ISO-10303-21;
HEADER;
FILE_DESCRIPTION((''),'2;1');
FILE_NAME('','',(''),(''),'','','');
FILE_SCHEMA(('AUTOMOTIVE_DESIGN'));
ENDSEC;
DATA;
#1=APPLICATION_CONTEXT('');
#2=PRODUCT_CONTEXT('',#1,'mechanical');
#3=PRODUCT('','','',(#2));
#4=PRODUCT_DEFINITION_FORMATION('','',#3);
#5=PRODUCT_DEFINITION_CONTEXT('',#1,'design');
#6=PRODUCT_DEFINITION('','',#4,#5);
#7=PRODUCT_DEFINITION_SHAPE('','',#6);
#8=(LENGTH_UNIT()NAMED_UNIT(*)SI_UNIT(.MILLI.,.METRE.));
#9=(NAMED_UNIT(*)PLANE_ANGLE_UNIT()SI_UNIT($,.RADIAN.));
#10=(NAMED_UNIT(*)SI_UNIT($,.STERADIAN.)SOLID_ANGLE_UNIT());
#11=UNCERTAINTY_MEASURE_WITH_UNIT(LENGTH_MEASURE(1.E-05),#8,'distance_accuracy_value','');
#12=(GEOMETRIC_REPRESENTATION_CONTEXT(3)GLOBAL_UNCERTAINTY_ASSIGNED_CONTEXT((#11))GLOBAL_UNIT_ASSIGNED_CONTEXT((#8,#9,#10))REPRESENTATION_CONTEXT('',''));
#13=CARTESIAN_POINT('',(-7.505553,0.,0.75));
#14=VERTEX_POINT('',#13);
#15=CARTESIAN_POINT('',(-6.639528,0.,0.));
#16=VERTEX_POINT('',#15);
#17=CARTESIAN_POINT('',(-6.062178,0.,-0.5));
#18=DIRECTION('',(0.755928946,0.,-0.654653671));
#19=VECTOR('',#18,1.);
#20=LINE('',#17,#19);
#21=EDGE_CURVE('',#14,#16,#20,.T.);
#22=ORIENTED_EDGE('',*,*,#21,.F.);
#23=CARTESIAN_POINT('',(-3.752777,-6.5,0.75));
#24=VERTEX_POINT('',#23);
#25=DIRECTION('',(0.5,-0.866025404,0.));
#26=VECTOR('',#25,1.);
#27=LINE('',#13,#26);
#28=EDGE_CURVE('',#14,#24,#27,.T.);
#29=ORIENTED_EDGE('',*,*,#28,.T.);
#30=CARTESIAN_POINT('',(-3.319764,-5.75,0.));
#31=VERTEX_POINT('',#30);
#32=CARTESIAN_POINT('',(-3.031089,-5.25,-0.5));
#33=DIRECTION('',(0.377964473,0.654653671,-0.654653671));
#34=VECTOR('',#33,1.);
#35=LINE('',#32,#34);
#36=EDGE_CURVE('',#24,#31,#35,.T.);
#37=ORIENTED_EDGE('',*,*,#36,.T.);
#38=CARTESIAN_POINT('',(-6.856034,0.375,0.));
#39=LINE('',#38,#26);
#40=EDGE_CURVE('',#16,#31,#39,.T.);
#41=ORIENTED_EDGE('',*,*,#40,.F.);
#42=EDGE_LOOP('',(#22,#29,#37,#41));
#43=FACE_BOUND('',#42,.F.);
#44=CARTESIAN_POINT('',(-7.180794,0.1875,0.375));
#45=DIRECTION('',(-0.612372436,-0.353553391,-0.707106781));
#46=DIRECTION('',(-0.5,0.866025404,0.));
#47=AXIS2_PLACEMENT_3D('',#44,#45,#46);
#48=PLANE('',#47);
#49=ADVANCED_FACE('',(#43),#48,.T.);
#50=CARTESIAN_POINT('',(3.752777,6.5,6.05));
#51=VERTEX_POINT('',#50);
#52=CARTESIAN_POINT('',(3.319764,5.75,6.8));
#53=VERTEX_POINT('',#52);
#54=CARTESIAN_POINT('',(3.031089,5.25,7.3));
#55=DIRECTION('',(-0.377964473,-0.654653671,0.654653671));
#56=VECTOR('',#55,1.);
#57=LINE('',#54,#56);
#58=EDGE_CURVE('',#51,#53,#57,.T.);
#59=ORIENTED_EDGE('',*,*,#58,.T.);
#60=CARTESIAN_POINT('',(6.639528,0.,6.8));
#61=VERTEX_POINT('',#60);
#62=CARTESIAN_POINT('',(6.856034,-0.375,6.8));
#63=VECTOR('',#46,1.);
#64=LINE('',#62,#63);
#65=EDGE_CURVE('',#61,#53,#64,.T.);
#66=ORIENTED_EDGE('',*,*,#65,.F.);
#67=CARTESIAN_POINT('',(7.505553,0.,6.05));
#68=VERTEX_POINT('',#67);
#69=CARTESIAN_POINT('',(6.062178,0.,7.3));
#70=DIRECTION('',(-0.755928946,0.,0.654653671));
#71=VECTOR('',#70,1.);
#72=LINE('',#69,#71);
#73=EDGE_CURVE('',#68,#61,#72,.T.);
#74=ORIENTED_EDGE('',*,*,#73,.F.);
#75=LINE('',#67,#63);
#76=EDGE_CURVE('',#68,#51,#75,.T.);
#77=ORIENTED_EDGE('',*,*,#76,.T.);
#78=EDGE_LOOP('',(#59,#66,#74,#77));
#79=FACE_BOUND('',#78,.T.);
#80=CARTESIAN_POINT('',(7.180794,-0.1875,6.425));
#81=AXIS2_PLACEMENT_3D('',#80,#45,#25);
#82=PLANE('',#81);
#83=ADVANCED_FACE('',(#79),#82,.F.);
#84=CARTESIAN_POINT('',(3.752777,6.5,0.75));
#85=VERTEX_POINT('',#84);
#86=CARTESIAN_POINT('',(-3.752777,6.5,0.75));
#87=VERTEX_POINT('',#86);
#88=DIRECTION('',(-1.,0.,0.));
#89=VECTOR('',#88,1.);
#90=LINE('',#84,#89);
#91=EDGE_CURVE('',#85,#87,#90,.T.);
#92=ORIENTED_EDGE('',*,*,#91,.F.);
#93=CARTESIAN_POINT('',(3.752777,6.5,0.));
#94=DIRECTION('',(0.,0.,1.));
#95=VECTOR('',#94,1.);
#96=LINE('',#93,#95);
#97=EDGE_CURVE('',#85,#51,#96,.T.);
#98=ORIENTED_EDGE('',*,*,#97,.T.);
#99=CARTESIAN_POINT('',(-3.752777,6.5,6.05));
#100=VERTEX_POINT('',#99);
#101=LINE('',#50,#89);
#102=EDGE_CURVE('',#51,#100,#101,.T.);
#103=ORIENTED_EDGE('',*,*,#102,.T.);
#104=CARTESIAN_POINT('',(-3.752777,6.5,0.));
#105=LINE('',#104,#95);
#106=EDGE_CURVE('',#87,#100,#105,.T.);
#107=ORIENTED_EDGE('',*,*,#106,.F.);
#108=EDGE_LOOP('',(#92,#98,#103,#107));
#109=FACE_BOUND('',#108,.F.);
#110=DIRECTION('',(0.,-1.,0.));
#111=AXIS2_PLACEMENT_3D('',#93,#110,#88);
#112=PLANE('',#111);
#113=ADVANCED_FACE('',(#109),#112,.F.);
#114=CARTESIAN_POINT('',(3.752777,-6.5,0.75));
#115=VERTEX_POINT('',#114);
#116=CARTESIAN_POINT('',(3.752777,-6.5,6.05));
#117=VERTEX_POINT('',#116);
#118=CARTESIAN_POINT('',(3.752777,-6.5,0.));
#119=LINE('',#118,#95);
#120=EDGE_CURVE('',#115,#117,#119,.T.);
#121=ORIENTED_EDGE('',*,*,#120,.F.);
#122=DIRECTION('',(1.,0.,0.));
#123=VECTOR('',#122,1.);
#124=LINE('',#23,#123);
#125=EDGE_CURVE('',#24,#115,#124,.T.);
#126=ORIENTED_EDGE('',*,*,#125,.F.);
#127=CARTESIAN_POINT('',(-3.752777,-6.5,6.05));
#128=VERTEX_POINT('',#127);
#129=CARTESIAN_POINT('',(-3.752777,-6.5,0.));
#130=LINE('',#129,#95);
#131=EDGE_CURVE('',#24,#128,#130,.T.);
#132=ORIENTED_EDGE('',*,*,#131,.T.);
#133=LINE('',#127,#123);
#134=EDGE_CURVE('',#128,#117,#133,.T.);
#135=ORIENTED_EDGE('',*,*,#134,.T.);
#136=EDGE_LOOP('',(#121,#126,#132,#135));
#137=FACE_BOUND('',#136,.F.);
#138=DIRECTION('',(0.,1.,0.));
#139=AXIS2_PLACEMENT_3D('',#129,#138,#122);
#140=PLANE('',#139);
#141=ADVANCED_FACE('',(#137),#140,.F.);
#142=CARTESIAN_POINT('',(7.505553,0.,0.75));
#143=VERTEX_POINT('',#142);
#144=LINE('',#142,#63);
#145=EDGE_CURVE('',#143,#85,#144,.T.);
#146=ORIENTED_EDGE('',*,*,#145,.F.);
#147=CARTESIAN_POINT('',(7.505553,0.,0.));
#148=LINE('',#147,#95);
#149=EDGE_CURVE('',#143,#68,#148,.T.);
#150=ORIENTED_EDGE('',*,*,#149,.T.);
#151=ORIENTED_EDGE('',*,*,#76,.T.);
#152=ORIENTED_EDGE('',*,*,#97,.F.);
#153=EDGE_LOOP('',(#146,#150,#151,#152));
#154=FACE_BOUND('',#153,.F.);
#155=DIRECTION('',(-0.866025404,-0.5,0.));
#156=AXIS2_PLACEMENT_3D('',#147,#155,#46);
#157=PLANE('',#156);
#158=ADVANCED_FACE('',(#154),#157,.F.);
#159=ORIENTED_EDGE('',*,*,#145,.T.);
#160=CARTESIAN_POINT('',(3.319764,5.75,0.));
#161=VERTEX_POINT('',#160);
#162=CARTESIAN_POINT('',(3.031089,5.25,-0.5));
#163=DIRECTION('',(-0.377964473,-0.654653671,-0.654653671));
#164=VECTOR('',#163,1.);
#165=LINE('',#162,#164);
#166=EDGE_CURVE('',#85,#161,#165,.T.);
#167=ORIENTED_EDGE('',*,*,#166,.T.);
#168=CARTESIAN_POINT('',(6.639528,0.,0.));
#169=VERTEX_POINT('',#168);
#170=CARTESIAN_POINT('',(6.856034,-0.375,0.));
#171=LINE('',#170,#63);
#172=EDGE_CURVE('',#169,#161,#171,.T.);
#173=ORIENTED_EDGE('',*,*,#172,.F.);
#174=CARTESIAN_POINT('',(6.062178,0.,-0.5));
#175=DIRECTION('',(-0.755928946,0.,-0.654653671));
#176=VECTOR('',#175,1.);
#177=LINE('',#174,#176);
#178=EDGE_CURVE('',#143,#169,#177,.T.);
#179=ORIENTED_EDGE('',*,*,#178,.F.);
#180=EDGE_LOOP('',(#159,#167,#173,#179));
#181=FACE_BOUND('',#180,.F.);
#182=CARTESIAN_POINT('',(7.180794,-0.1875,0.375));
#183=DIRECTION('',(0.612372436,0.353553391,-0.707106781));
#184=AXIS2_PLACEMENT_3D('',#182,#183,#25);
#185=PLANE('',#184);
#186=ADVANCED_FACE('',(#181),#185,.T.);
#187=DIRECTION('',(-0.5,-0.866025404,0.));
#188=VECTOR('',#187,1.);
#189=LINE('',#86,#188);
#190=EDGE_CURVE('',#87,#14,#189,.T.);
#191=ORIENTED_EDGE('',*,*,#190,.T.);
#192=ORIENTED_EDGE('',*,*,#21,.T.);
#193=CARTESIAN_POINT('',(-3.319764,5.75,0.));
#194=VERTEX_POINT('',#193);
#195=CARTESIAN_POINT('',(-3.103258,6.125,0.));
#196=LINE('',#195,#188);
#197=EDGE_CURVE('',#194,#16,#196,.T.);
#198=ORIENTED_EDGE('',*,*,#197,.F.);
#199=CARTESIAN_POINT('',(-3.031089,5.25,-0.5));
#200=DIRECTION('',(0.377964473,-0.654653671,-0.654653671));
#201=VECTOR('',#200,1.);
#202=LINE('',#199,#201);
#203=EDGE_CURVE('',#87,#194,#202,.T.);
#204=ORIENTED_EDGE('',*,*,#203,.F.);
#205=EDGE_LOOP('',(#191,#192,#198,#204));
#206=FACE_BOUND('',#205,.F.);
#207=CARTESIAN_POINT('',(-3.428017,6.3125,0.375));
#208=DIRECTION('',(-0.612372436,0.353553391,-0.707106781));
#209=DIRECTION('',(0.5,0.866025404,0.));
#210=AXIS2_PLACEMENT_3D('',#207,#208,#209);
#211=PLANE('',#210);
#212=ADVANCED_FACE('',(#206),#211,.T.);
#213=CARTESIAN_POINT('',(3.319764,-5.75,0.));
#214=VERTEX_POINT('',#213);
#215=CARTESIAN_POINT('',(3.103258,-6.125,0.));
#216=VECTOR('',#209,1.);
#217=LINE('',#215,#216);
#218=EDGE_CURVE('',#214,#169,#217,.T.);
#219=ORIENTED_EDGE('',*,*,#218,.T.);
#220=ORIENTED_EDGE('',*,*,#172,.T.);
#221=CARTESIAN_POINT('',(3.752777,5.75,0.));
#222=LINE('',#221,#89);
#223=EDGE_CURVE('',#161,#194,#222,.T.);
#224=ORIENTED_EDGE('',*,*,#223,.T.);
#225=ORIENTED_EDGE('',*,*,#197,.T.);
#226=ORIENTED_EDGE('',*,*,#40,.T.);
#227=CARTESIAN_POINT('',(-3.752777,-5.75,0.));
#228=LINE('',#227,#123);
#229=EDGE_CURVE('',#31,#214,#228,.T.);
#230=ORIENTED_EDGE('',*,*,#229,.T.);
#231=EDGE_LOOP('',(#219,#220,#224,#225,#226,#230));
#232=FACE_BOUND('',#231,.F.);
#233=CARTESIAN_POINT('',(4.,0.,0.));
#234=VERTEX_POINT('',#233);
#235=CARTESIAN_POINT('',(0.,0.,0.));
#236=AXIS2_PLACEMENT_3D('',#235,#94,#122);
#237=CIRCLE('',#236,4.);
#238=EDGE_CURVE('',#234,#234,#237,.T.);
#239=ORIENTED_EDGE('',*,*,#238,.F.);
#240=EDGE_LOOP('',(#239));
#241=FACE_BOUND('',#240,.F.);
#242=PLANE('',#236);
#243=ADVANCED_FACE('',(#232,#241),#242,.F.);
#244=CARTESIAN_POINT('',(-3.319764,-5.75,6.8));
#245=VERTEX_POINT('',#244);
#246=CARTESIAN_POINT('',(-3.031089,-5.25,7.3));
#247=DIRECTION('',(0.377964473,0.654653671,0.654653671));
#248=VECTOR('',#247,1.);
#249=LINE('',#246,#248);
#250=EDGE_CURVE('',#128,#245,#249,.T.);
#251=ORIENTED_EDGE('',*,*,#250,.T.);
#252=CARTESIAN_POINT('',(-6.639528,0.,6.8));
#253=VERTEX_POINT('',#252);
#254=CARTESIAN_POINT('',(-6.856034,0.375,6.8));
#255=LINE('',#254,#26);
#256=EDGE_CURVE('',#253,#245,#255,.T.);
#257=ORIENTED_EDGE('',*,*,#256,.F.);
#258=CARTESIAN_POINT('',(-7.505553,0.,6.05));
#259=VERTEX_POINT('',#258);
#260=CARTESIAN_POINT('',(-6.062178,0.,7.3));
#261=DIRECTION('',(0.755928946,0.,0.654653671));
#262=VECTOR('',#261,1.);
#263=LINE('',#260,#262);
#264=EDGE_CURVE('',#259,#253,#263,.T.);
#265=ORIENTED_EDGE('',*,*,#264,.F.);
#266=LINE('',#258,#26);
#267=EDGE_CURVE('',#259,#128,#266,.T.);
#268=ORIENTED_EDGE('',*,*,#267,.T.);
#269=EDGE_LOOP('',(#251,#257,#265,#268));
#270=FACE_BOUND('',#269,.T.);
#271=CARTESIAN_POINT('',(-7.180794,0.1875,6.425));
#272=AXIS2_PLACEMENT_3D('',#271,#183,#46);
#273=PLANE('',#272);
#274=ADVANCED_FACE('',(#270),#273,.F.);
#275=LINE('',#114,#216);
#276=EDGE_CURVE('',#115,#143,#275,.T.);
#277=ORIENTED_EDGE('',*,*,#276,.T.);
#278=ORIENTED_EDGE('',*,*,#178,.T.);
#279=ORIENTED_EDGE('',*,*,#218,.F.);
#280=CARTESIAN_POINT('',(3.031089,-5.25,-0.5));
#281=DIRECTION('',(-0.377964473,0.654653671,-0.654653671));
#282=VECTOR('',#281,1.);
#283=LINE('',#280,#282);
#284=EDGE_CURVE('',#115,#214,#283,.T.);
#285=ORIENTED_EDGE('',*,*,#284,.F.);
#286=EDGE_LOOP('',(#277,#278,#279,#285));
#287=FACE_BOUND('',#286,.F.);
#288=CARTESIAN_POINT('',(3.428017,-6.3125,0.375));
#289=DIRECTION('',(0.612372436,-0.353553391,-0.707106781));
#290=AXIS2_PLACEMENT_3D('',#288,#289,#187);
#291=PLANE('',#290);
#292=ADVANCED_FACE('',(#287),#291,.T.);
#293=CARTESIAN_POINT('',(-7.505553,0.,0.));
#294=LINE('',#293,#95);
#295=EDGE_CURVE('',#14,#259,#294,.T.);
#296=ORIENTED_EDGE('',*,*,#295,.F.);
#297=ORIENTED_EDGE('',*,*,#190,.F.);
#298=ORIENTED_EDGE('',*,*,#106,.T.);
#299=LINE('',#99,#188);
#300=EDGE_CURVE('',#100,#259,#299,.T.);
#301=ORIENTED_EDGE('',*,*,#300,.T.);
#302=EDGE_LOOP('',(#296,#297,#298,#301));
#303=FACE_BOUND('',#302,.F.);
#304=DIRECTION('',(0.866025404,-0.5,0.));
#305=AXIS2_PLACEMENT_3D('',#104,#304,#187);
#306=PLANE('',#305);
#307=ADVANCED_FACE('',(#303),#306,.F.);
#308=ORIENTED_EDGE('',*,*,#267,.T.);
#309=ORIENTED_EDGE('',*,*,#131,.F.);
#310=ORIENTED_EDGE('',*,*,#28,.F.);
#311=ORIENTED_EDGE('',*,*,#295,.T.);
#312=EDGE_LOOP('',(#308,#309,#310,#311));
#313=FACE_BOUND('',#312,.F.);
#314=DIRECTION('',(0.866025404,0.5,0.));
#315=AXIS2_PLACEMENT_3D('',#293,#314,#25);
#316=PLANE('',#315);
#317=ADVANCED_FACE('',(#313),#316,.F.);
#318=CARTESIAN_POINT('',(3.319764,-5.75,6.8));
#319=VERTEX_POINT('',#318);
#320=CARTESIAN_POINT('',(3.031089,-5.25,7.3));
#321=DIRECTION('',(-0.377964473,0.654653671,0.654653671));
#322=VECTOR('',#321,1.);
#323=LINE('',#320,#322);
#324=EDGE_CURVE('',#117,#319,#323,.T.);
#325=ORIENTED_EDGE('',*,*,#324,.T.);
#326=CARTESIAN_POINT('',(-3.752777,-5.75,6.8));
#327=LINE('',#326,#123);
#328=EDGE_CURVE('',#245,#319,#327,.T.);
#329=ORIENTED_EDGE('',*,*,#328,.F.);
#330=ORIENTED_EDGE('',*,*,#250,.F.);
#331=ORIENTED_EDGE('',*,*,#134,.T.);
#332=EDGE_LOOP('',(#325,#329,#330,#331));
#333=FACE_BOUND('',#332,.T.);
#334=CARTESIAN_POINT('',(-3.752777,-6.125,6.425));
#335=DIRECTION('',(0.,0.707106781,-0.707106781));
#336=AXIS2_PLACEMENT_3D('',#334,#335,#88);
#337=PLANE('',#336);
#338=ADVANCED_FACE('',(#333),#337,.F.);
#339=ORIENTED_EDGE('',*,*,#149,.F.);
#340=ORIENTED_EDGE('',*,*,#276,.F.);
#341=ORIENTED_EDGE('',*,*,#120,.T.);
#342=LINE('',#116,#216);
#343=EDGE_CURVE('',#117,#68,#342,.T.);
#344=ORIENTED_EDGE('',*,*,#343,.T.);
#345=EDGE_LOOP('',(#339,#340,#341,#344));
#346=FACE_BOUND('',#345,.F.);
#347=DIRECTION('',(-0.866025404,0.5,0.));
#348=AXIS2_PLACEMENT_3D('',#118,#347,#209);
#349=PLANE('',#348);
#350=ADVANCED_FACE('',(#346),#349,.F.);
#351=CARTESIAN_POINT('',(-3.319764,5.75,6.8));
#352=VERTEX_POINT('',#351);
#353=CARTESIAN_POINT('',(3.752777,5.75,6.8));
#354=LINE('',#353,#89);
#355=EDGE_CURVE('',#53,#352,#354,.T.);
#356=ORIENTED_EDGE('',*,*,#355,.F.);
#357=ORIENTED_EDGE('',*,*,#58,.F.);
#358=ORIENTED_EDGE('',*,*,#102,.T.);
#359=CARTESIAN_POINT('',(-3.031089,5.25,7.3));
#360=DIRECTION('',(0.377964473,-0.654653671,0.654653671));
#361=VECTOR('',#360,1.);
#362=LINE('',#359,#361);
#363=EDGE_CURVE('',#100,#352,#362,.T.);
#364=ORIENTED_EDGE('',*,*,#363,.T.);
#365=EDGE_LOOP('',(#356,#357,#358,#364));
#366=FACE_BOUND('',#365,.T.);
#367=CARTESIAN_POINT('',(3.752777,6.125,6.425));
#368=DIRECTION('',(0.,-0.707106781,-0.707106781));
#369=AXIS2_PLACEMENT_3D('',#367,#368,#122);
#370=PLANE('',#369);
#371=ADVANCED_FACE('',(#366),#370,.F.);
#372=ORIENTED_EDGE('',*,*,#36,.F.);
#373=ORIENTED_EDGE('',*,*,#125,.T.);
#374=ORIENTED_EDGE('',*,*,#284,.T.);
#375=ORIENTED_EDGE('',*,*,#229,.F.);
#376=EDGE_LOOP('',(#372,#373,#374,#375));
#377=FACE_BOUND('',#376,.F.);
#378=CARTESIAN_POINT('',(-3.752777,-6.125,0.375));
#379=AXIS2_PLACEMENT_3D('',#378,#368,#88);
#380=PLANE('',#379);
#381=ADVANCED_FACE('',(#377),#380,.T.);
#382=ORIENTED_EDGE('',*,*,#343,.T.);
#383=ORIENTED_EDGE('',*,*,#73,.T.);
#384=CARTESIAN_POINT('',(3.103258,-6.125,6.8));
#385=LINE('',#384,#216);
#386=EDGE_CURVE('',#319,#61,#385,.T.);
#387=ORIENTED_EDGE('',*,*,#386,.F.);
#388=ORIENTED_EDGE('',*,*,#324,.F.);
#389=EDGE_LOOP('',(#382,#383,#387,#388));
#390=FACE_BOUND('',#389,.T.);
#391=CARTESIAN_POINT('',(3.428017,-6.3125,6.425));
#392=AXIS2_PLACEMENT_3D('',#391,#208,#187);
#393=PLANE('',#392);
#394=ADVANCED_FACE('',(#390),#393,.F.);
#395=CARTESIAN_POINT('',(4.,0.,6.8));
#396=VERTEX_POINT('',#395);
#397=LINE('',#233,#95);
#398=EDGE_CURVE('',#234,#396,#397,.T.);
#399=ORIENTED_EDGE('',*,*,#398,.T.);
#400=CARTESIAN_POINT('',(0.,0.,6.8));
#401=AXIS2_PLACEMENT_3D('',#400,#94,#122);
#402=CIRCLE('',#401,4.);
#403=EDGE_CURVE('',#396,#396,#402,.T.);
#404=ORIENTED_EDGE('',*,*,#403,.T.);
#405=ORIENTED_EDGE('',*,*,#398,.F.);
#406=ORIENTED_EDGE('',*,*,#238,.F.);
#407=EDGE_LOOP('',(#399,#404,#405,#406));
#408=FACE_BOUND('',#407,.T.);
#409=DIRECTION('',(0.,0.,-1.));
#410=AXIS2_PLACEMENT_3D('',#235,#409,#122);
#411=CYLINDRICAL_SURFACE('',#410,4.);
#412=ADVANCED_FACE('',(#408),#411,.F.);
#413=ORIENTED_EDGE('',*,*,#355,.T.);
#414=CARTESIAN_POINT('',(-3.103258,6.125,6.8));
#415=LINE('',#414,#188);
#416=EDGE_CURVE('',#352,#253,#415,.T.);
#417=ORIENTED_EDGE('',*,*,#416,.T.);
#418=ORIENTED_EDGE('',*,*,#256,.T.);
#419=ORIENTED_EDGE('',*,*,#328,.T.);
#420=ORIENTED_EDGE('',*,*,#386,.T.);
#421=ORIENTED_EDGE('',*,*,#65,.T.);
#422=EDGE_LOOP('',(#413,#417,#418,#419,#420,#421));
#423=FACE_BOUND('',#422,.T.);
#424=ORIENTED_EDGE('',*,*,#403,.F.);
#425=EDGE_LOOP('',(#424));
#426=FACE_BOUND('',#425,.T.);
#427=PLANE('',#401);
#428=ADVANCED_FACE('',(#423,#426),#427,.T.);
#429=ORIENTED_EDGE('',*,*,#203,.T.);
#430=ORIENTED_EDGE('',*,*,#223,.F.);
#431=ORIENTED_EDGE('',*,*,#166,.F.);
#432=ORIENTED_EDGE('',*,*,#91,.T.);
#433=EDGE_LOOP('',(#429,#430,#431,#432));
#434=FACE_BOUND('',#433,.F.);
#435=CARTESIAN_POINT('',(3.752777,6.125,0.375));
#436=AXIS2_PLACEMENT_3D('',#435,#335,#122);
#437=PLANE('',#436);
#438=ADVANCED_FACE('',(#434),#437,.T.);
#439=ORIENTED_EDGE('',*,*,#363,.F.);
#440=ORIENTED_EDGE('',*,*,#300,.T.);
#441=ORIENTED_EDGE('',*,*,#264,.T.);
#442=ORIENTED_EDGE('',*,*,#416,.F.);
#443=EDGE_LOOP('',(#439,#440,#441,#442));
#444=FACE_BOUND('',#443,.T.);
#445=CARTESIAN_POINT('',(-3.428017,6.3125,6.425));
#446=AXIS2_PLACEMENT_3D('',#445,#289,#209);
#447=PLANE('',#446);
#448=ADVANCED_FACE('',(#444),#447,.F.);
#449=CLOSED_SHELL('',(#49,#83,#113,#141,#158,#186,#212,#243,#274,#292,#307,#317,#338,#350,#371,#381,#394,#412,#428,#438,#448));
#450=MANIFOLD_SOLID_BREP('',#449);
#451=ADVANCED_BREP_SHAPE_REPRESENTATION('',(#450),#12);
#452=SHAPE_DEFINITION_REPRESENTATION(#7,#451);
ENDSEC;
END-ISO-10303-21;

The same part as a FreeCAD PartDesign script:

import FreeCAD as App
import Part
import Sketcher
from FreeCAD import Vector
Q = App.Units.Quantity


def edges_at(feature, points):
    """Names of the edges that pass closest to the given points."""
    edges = feature.Shape.Edges
    near = lambda p: min(range(len(edges)), key=lambda i: edges[i].distToShape(Part.Vertex(*p))[0])
    return sorted({f"Edge{near(p) + 1}" for p in points})

doc = App.newDocument("Part")
body = doc.addObject("PartDesign::Body", "Body")

# Sketch on XY plane
sketch1 = body.newObject("Sketcher::SketchObject", "Sketch")
sketch1.AttachmentSupport = (doc.getObject("XY_Plane"), [""])
sketch1.MapMode = "FlatFace"
sketch1.addGeometry([
    Part.LineSegment(Vector(3.8, -6.5, 0), Vector(7.5, 0, 0)),  # 0
    Part.LineSegment(Vector(7.5, 0, 0), Vector(3.8, 6.5, 0)),  # 1
    Part.LineSegment(Vector(3.8, 6.5, 0), Vector(-3.8, 6.5, 0)),  # 2
    Part.LineSegment(Vector(-3.8, 6.5, 0), Vector(-7.5, 0, 0)),  # 3
    Part.LineSegment(Vector(-7.5, 0, 0), Vector(-3.8, -6.5, 0)),  # 4
    Part.LineSegment(Vector(-3.8, -6.5, 0), Vector(3.8, -6.5, 0)),  # 5
    Part.Circle(Vector(0, 0, 0), Vector(0, 0, 1), 4),  # 6
], False)
sketch1.addConstraint([
    Sketcher.Constraint("Coincident", 0, 2, 1, 1),
    Sketcher.Constraint("Coincident", 1, 2, 2, 1),
    Sketcher.Constraint("Coincident", 2, 2, 3, 1),
    Sketcher.Constraint("Coincident", 3, 2, 4, 1),
    Sketcher.Constraint("Coincident", 4, 2, 5, 1),
    Sketcher.Constraint("Coincident", 5, 2, 0, 1),
    Sketcher.Constraint("Horizontal", 2),
    Sketcher.Constraint("Horizontal", 5),
    Sketcher.Constraint("Coincident", 6, 3, -1, 1),
    Sketcher.Constraint("Symmetric", 0, 2, 3, 2, -1, 1),
    Sketcher.Constraint("Symmetric", 1, 2, 4, 2, -1, 1),
    Sketcher.Constraint("PointOnObject", 0, 2, -1),
    Sketcher.Constraint("Parallel", 0, 3),
    Sketcher.Constraint("Vertical", 2, 2, 4, 2),
    Sketcher.Constraint("Diameter", 6, Q("8 mm")),
    Sketcher.Constraint("Angle", 0, Q("60 deg")),
    Sketcher.Constraint("DistanceY", 4, 2, 2, 2, Q("13 mm")),
    Sketcher.Constraint("DistanceX", 2, 2, 2, 1, Q("7.505554 mm")),
])
pad1 = body.newObject("PartDesign::Pad", "Pad")
pad1.Profile = sketch1
pad1.Length = 6.8
doc.recompute()

chamfer = body.newObject("PartDesign::Chamfer", "Chamfer")
chamfer.Base = (pad1, edges_at(pad1, [
    (5.629, 3.25, 6.8),
    (0, 6.5, 6.8),
    (-5.629, 3.25, 6.8),
    (-5.629, -3.25, 6.8),
    (0, -6.5, 6.8),
    (-5.629, -3.25, 0),
    (-5.629, 3.25, 0),
    (0, 6.5, 0),
    (5.629, 3.25, 0),
    (5.629, -3.25, 0),
    (0, -6.5, 0),
    (5.629, -3.25, 6.8),
]))
chamfer.Size = 0.75

doc.recompute()
